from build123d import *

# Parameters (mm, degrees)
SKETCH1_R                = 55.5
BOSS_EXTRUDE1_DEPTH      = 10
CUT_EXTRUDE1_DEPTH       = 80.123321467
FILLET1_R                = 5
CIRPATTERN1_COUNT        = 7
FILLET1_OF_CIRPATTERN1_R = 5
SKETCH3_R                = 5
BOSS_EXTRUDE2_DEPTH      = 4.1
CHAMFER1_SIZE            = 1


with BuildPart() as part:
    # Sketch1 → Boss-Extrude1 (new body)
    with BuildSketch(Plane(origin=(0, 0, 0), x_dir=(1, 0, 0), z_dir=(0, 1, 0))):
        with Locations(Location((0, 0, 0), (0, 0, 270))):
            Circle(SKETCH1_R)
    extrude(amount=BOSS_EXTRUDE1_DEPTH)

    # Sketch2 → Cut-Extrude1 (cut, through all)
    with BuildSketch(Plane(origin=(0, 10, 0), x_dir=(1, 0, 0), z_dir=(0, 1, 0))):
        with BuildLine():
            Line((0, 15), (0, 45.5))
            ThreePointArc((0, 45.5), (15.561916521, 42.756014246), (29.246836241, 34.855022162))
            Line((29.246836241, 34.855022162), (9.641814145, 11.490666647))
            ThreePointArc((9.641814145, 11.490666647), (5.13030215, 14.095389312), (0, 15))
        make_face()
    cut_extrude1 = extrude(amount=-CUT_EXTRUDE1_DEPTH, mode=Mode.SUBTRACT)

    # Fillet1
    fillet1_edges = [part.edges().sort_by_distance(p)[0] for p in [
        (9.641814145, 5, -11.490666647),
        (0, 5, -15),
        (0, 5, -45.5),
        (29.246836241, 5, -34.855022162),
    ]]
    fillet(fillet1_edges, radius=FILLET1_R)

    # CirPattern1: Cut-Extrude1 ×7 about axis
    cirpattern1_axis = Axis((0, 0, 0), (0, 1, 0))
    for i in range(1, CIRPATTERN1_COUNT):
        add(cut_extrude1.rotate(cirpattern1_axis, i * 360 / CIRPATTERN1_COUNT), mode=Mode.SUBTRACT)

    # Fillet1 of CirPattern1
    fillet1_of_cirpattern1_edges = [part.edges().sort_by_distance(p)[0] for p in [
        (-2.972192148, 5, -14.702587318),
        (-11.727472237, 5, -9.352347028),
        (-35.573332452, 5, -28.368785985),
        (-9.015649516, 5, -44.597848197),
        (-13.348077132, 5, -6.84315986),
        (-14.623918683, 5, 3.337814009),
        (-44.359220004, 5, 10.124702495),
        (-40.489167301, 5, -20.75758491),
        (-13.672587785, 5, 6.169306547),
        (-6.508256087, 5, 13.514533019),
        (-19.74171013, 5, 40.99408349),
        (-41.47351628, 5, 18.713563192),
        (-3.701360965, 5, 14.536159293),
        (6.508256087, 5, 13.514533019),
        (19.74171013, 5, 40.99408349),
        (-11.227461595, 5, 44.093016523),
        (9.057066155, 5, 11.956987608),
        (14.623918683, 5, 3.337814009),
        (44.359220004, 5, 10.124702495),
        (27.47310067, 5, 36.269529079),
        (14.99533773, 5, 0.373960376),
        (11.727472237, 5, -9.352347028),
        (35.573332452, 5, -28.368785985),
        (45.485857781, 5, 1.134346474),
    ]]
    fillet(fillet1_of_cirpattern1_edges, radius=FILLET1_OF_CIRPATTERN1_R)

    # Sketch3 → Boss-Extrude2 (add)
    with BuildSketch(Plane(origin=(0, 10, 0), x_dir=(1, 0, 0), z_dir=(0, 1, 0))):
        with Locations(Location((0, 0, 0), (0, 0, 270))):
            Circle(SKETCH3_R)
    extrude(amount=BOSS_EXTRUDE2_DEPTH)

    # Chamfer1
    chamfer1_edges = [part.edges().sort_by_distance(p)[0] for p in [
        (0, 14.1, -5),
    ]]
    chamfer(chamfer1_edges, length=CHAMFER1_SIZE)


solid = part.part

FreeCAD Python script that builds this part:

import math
import FreeCAD as App
import Part
import Sketcher
Q = App.Units.Quantity


def edges_at(feature, points):
    """Names of the edges that pass closest to the given points."""
    edges = feature.Shape.Edges
    near = lambda p: min(range(len(edges)), key=lambda i: edges[i].distToShape(Part.Vertex(*p))[0])
    return sorted({f"Edge{near(p) + 1}" for p in points})

doc = App.newDocument("Part")
params = doc.addObject("Spreadsheet::Sheet", "Params")
for row, (alias, value) in enumerate([
    ("sketch1_diameter", "111 mm"),
    ("pad1_length", "10 mm"),
    ("sketch2_radius", "15 mm"),
    ("sketch2_radius2", "45.5 mm"),
    ("fillet_radius", "5 mm"),
    ("fillet2_radius", "5 mm"),
    ("sketch3_diameter", "10 mm"),
    ("pad2_length", "4.1 mm"),
    ("chamfer_size", "1 mm"),
], start=1):
    params.set(f"A{row}", alias)
    params.set(f"B{row}", "=" + value)
    params.setAlias(f"B{row}", alias)

body = doc.addObject("PartDesign::Body", "Body")

# Sketch on XZ plane
sketch1 = doc.addObject("Sketcher::SketchObject", "Sketch")
body.addObject(sketch1)
sketch1.AttachmentSupport = (doc.XZ_Plane, [""])
sketch1.MapMode = "FlatFace"
sketch1.addGeometry(Part.Circle(App.Vector(0, 0, 0), App.Vector(0, 0, 1), 55.5), False)
sketch1.addConstraint([
    Sketcher.Constraint("Coincident", 0, 3, -1, 1),
    Sketcher.Constraint("Diameter", 0, Q("111 mm")),
])
sketch1.setExpression("Constraints[1]", "Params.sketch1_diameter")
pad1 = doc.addObject("PartDesign::Pad", "Pad")
body.addObject(pad1)
pad1.Profile = sketch1
pad1.setExpression("Length", "Params.pad1_length")
pad1.Reversed = True

# Sketch on XZ plane
sketch2 = doc.addObject("Sketcher::SketchObject", "Sketch001")
body.addObject(sketch2)
sketch2.AttachmentSupport = (doc.XZ_Plane, [""])
sketch2.MapMode = "FlatFace"
sketch2.AttachmentOffset = App.Placement(App.Vector(0, 0, -10), App.Rotation())
sketch2.addGeometry([
    Part.LineSegment(App.Vector(0, -45.5, 0), App.Vector(0, -15, 0)),
    Part.ArcOfCircle(Part.Circle(App.Vector(0, 0, 0), App.Vector(0, 0, 1), 15), math.radians(-90), math.radians(-50)),
    Part.LineSegment(App.Vector(9.641814, -11.490667, 0), App.Vector(29.246836, -34.855022, 0)),
    Part.ArcOfCircle(Part.Circle(App.Vector(0, 0, 0), App.Vector(0, 0, 1), 45.5), math.radians(-90), math.radians(-50)),
], False)
sketch2.addConstraint([
    Sketcher.Constraint("Coincident", 0, 2, 1, 1),
    Sketcher.Constraint("Coincident", 1, 2, 2, 1),
    Sketcher.Constraint("Coincident", 2, 2, 3, 2),
    Sketcher.Constraint("Coincident", 3, 1, 0, 1),
    Sketcher.Constraint("Vertical", 0),
    Sketcher.Constraint("Coincident", 1, 3, -1, 1),
    Sketcher.Constraint("Coincident", 3, 3, -1, 1),
    Sketcher.Constraint("PointOnObject", 0, 2, -2),
    Sketcher.Constraint("Radius", 1, Q("15 mm")),
    Sketcher.Constraint("Radius", 3, Q("45.5 mm")),
    Sketcher.Constraint("Angle", 2, Q("-50 deg")),
    Sketcher.Constraint("DistanceX", -1, 1, 1, 2, Q("9.641814 mm")),
])
sketch2.setExpression("Constraints[8]", "Params.sketch2_radius")
sketch2.setExpression("Constraints[9]", "Params.sketch2_radius2")
pocket1 = doc.addObject("PartDesign::Pocket", "Pocket")
body.addObject(pocket1)
pocket1.Profile = sketch2
pocket1.Type = "ThroughAll"
pocket1.Reversed = True
doc.recompute()

fillet = doc.addObject("PartDesign::Fillet", "Fillet")
body.addObject(fillet)
fillet.Base = (pocket1, edges_at(pocket1, [
    (9.642, 5, -11.491),
    (0, 5, -15),
    (0, 5, -45.5),
    (29.247, 5, -34.855),
]))
fillet.setExpression("Radius", "Params.fillet_radius")
doc.recompute()

polarpattern = doc.addObject("PartDesign::PolarPattern", "PolarPattern")
body.addObject(polarpattern)
polarpattern.Originals = [pocket1]
polarpattern.Axis = (doc.Y_Axis, [""])
polarpattern.Angle = 360
polarpattern.Occurrences = 7
body.Tip = polarpattern
doc.recompute()

fillet2 = doc.addObject("PartDesign::Fillet", "Fillet001")
body.addObject(fillet2)
fillet2.Base = (polarpattern, edges_at(polarpattern, [
    (-2.972, 5, -14.703),
    (-11.727, 5, -9.352),
    (-35.573, 5, -28.369),
    (-9.016, 5, -44.598),
    (-13.348, 5, -6.843),
    (-14.624, 5, 3.338),
    (-44.359, 5, 10.125),
    (-40.489, 5, -20.758),
    (-13.673, 5, 6.169),
    (-6.508, 5, 13.515),
    (-19.742, 5, 40.994),
    (-41.474, 5, 18.714),
    (-3.701, 5, 14.536),
    (6.508, 5, 13.515),
    (19.742, 5, 40.994),
    (-11.227, 5, 44.093),
    (9.057, 5, 11.957),
    (14.624, 5, 3.338),
    (44.359, 5, 10.125),
    (27.473, 5, 36.27),
    (14.995, 5, 0.374),
    (11.727, 5, -9.352),
    (35.573, 5, -28.369),
    (45.486, 5, 1.134),
]))
fillet2.setExpression("Radius", "Params.fillet2_radius")

# Sketch on XZ plane
sketch3 = doc.addObject("Sketcher::SketchObject", "Sketch002")
body.addObject(sketch3)
sketch3.AttachmentSupport = (doc.XZ_Plane, [""])
sketch3.MapMode = "FlatFace"
sketch3.AttachmentOffset = App.Placement(App.Vector(0, 0, -10), App.Rotation())
sketch3.addGeometry(Part.Circle(App.Vector(0, 0, 0), App.Vector(0, 0, 1), 5), False)
sketch3.addConstraint([
    Sketcher.Constraint("Coincident", 0, 3, -1, 1),
    Sketcher.Constraint("Diameter", 0, Q("10 mm")),
])
sketch3.setExpression("Constraints[1]", "Params.sketch3_diameter")
pad2 = doc.addObject("PartDesign::Pad", "Pad001")
body.addObject(pad2)
pad2.Profile = sketch3
pad2.setExpression("Length", "Params.pad2_length")
pad2.Reversed = True
doc.recompute()

chamfer = doc.addObject("PartDesign::Chamfer", "Chamfer")
body.addObject(chamfer)
chamfer.Base = (pad2, edges_at(pad2, [(0, 14.1, -5)]))
chamfer.setExpression("Size", "Params.chamfer_size")

doc.recompute()
